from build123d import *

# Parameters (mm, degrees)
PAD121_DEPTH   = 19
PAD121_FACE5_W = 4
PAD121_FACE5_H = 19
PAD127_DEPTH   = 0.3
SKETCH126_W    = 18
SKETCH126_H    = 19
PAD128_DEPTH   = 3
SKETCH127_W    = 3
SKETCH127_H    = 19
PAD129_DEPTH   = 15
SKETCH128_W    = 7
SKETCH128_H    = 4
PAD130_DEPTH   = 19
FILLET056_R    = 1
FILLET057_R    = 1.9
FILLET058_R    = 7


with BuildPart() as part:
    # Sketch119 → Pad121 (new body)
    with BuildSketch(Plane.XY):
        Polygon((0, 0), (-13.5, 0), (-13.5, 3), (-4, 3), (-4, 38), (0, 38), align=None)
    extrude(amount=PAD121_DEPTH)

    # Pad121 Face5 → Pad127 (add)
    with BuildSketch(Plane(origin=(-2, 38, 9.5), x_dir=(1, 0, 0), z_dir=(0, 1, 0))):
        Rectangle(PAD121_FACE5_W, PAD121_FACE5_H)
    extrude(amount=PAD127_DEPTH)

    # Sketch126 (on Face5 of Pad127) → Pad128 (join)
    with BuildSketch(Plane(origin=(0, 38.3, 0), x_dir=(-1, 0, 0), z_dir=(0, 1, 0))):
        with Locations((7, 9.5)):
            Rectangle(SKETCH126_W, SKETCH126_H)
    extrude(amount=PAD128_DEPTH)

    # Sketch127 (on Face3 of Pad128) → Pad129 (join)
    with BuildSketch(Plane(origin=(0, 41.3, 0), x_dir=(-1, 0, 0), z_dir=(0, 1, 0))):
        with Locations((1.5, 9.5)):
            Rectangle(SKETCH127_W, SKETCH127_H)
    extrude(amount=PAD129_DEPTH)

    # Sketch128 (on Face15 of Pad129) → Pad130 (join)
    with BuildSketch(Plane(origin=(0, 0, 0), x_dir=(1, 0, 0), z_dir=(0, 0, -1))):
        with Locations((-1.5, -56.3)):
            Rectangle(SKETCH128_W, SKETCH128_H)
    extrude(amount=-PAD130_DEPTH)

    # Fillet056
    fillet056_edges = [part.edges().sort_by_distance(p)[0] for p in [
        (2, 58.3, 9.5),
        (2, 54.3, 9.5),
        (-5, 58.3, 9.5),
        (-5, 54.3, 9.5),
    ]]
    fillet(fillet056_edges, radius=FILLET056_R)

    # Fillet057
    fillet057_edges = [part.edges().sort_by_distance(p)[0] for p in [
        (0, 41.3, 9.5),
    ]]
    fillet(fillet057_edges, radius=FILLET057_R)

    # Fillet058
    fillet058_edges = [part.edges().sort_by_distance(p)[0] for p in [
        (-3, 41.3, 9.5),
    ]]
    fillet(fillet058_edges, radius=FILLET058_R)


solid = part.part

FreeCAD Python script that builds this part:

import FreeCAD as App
import Part
import Sketcher

V = App.Vector


def edges_at(feature, points):
    """Names of the edges that pass closest to the given points."""
    edges = feature.Shape.Edges
    near = lambda p: min(range(len(edges)), key=lambda i: edges[i].distToShape(Part.Vertex(*p))[0])
    return sorted({f"Edge{near(p) + 1}" for p in points})

doc = App.newDocument("Part")
params = doc.addObject("Spreadsheet::Sheet", "Params")
for row, (alias, value) in enumerate([
    ("sketch1_width", "4 mm"),
    ("sketch1_height", "38 mm"),
    ("sketch1_height2", "35 mm"),
    ("sketch1_width2", "13.5 mm"),
    ("pad1_length", "19 mm"),
    ("sketch2_width", "4 mm"),
    ("sketch2_height", "19 mm"),
    ("pad2_length", "0.3 mm"),
    ("sketch3_width", "18 mm"),
    ("sketch3_height", "19 mm"),
    ("pad3_length", "3 mm"),
    ("sketch4_width", "3 mm"),
    ("sketch4_height", "19 mm"),
    ("pad4_length", "15 mm"),
    ("sketch5_width", "7 mm"),
    ("sketch5_height", "4 mm"),
    ("pad5_length", "19 mm"),
    ("fillet_radius", "1 mm"),
    ("fillet2_radius", "1.9 mm"),
    ("fillet3_radius", "7 mm"),
], start=1):
    params.set(f"A{row}", alias)
    params.set(f"B{row}", "=" + value)
    params.setAlias(f"B{row}", alias)

body = doc.addObject("PartDesign::Body", "Body")

sketch1 = body.newObject("Sketcher::SketchObject", "Sketch")
sketch1.AttachmentSupport = (doc.getObject("XY_Plane"), [""])
sketch1.MapMode = "FlatFace"
sketch1.addGeometry([
    Part.LineSegment(V(-13.5, 0, 0), V(0, 0, 0)),
    Part.LineSegment(V(0, 0, 0), V(0, 38, 0)),
    Part.LineSegment(V(0, 38, 0), V(-4, 38, 0)),
    Part.LineSegment(V(-4, 38, 0), V(-4, 3, 0)),
    Part.LineSegment(V(-4, 3, 0), V(-13.5, 3, 0)),
    Part.LineSegment(V(-13.5, 3, 0), V(-13.5, 0, 0)),
], False)
sketch1.addConstraint([
    Sketcher.Constraint("Coincident", 0, 2, 1, 1),
    Sketcher.Constraint("Coincident", 1, 2, 2, 1),
    Sketcher.Constraint("Coincident", 2, 2, 3, 1),
    Sketcher.Constraint("Coincident", 3, 2, 4, 1),
    Sketcher.Constraint("Coincident", 4, 2, 5, 1),
    Sketcher.Constraint("Coincident", 5, 2, 0, 1),
    Sketcher.Constraint("Horizontal", 0),
    Sketcher.Constraint("Vertical", 1),
    Sketcher.Constraint("Horizontal", 2),
    Sketcher.Constraint("Vertical", 3),
    Sketcher.Constraint("Horizontal", 4),
    Sketcher.Constraint("Vertical", 5),
    Sketcher.Constraint("Coincident", 0, 2, -1, 1),
    Sketcher.Constraint("DistanceX", 2, 2, 2, 1, 4.0),
    Sketcher.Constraint("DistanceY", 1, 1, 1, 2, 38.0),
    Sketcher.Constraint("DistanceY", 3, 2, 3, 1, 35.0),
    Sketcher.Constraint("DistanceX", 0, 1, 0, 2, 13.5),
])
sketch1.setExpression("Constraints[13]", "Params.sketch1_width")
sketch1.setExpression("Constraints[14]", "Params.sketch1_height")
sketch1.setExpression("Constraints[15]", "Params.sketch1_height2")
sketch1.setExpression("Constraints[16]", "Params.sketch1_width2")
pad1 = body.newObject("PartDesign::Pad", "Pad")
pad1.Profile = sketch1
pad1.setExpression("Length", "Params.pad1_length")

sketch2 = body.newObject("Sketcher::SketchObject", "Sketch001")
sketch2.AttachmentSupport = (doc.getObject("XZ_Plane"), [""])
sketch2.MapMode = "FlatFace"
sketch2.AttachmentOffset = App.Placement(V(0, 0, -38), App.Rotation())
sketch2.addGeometry([
    Part.LineSegment(V(-4, 0, 0), V(-4, 19, 0)),
    Part.LineSegment(V(-4, 19, 0), V(0, 19, 0)),
    Part.LineSegment(V(0, 19, 0), V(0, 0, 0)),
    Part.LineSegment(V(0, 0, 0), V(-4, 0, 0)),
], False)
sketch2.addConstraint([
    Sketcher.Constraint("Coincident", 0, 2, 1, 1),
    Sketcher.Constraint("Coincident", 1, 2, 2, 1),
    Sketcher.Constraint("Coincident", 2, 2, 3, 1),
    Sketcher.Constraint("Coincident", 3, 2, 0, 1),
    Sketcher.Constraint("Vertical", 0),
    Sketcher.Constraint("Horizontal", 1),
    Sketcher.Constraint("Vertical", 2),
    Sketcher.Constraint("Horizontal", 3),
    Sketcher.Constraint("Coincident", 2, 2, -1, 1),
    Sketcher.Constraint("DistanceX", 1, 1, 1, 2, 4.0),
    Sketcher.Constraint("DistanceY", 0, 1, 0, 2, 19.0),
])
sketch2.setExpression("Constraints[9]", "Params.sketch2_width")
sketch2.setExpression("Constraints[10]", "Params.sketch2_height")
pad2 = body.newObject("PartDesign::Pad", "Pad001")
pad2.Profile = sketch2
pad2.setExpression("Length", "Params.pad2_length")
pad2.Reversed = True

sketch3 = body.newObject("Sketcher::SketchObject", "Sketch002")
sketch3.AttachmentSupport = (doc.getObject("XZ_Plane"), [""])
sketch3.MapMode = "FlatFace"
sketch3.AttachmentOffset = App.Placement(V(0, 0, -38.3), App.Rotation())
sketch3.addGeometry([
    Part.LineSegment(V(2, 19, 0), V(2, 0, 0)),
    Part.LineSegment(V(2, 0, 0), V(-16, 0, 0)),
    Part.LineSegment(V(-16, 0, 0), V(-16, 19, 0)),
    Part.LineSegment(V(-16, 19, 0), V(2, 19, 0)),
], False)
sketch3.addConstraint([
    Sketcher.Constraint("Coincident", 0, 2, 1, 1),
    Sketcher.Constraint("Coincident", 1, 2, 2, 1),
    Sketcher.Constraint("Coincident", 2, 2, 3, 1),
    Sketcher.Constraint("Coincident", 3, 2, 0, 1),
    Sketcher.Constraint("Vertical", 0),
    Sketcher.Constraint("Horizontal", 1),
    Sketcher.Constraint("Vertical", 2),
    Sketcher.Constraint("Horizontal", 3),
    Sketcher.Constraint("PointOnObject", 0, 2, -1),
    Sketcher.Constraint("DistanceX", 1, 2, 1, 1, 18.0),
    Sketcher.Constraint("DistanceY", 0, 2, 0, 1, 19.0),
    Sketcher.Constraint("DistanceX", -1, 1, 0, 2, 2.0),
])
sketch3.setExpression("Constraints[9]", "Params.sketch3_width")
sketch3.setExpression("Constraints[10]", "Params.sketch3_height")
pad3 = body.newObject("PartDesign::Pad", "Pad002")
pad3.Profile = sketch3
pad3.setExpression("Length", "Params.pad3_length")
pad3.Reversed = True

sketch4 = body.newObject("Sketcher::SketchObject", "Sketch003")
sketch4.AttachmentSupport = (doc.getObject("XZ_Plane"), [""])
sketch4.MapMode = "FlatFace"
sketch4.AttachmentOffset = App.Placement(V(0, 0, -41.3), App.Rotation())
sketch4.addGeometry([
    Part.LineSegment(V(0, 19, 0), V(0, 0, 0)),
    Part.LineSegment(V(0, 0, 0), V(-3, 0, 0)),
    Part.LineSegment(V(-3, 0, 0), V(-3, 19, 0)),
    Part.LineSegment(V(-3, 19, 0), V(0, 19, 0)),
], False)
sketch4.addConstraint([
    Sketcher.Constraint("Coincident", 0, 2, 1, 1),
    Sketcher.Constraint("Coincident", 1, 2, 2, 1),
    Sketcher.Constraint("Coincident", 2, 2, 3, 1),
    Sketcher.Constraint("Coincident", 3, 2, 0, 1),
    Sketcher.Constraint("Vertical", 0),
    Sketcher.Constraint("Horizontal", 1),
    Sketcher.Constraint("Vertical", 2),
    Sketcher.Constraint("Horizontal", 3),
    Sketcher.Constraint("Coincident", 0, 2, -1, 1),
    Sketcher.Constraint("DistanceX", 1, 2, 1, 1, 3.0),
    Sketcher.Constraint("DistanceY", 0, 2, 0, 1, 19.0),
])
sketch4.setExpression("Constraints[9]", "Params.sketch4_width")
sketch4.setExpression("Constraints[10]", "Params.sketch4_height")
pad4 = body.newObject("PartDesign::Pad", "Pad003")
pad4.Profile = sketch4
pad4.setExpression("Length", "Params.pad4_length")
pad4.Reversed = True

sketch5 = body.newObject("Sketcher::SketchObject", "Sketch004")
sketch5.AttachmentSupport = (doc.getObject("XY_Plane"), [""])
sketch5.MapMode = "FlatFace"
sketch5.addGeometry([
    Part.LineSegment(V(-5, 54.3, 0), V(-5, 58.3, 0)),
    Part.LineSegment(V(-5, 58.3, 0), V(2, 58.3, 0)),
    Part.LineSegment(V(2, 58.3, 0), V(2, 54.3, 0)),
    Part.LineSegment(V(2, 54.3, 0), V(-5, 54.3, 0)),
], False)
sketch5.addConstraint([
    Sketcher.Constraint("Coincident", 0, 2, 1, 1),
    Sketcher.Constraint("Coincident", 1, 2, 2, 1),
    Sketcher.Constraint("Coincident", 2, 2, 3, 1),
    Sketcher.Constraint("Coincident", 3, 2, 0, 1),
    Sketcher.Constraint("Vertical", 0),
    Sketcher.Constraint("Horizontal", 1),
    Sketcher.Constraint("Vertical", 2),
    Sketcher.Constraint("Horizontal", 3),
    Sketcher.Constraint("DistanceX", 1, 1, 1, 2, 7.0),
    Sketcher.Constraint("DistanceY", 0, 1, 0, 2, 4.0),
    Sketcher.Constraint("DistanceX", 0, 2, -1, 1, 5.0),
    Sketcher.Constraint("DistanceY", -1, 1, 0, 2, 58.3),
])
sketch5.setExpression("Constraints[8]", "Params.sketch5_width")
sketch5.setExpression("Constraints[9]", "Params.sketch5_height")
pad5 = body.newObject("PartDesign::Pad", "Pad004")
pad5.Profile = sketch5
pad5.setExpression("Length", "Params.pad5_length")
doc.recompute()

fillet = body.newObject("PartDesign::Fillet", "Fillet")
fillet.Base = (pad5, edges_at(pad5, [
    (2, 58.3, 9.5),
    (2, 54.3, 9.5),
    (-5, 58.3, 9.5),
    (-5, 54.3, 9.5),
]))
fillet.setExpression("Radius", "Params.fillet_radius")
doc.recompute()

fillet2 = body.newObject("PartDesign::Fillet", "Fillet001")
fillet2.Base = (fillet, edges_at(fillet, [(0, 41.3, 9.5)]))
fillet2.setExpression("Radius", "Params.fillet2_radius")
doc.recompute()

fillet3 = body.newObject("PartDesign::Fillet", "Fillet002")
fillet3.Base = (fillet2, edges_at(fillet2, [(-3, 41.3, 9.5)]))
fillet3.setExpression("Radius", "Params.fillet3_radius")

doc.recompute()
